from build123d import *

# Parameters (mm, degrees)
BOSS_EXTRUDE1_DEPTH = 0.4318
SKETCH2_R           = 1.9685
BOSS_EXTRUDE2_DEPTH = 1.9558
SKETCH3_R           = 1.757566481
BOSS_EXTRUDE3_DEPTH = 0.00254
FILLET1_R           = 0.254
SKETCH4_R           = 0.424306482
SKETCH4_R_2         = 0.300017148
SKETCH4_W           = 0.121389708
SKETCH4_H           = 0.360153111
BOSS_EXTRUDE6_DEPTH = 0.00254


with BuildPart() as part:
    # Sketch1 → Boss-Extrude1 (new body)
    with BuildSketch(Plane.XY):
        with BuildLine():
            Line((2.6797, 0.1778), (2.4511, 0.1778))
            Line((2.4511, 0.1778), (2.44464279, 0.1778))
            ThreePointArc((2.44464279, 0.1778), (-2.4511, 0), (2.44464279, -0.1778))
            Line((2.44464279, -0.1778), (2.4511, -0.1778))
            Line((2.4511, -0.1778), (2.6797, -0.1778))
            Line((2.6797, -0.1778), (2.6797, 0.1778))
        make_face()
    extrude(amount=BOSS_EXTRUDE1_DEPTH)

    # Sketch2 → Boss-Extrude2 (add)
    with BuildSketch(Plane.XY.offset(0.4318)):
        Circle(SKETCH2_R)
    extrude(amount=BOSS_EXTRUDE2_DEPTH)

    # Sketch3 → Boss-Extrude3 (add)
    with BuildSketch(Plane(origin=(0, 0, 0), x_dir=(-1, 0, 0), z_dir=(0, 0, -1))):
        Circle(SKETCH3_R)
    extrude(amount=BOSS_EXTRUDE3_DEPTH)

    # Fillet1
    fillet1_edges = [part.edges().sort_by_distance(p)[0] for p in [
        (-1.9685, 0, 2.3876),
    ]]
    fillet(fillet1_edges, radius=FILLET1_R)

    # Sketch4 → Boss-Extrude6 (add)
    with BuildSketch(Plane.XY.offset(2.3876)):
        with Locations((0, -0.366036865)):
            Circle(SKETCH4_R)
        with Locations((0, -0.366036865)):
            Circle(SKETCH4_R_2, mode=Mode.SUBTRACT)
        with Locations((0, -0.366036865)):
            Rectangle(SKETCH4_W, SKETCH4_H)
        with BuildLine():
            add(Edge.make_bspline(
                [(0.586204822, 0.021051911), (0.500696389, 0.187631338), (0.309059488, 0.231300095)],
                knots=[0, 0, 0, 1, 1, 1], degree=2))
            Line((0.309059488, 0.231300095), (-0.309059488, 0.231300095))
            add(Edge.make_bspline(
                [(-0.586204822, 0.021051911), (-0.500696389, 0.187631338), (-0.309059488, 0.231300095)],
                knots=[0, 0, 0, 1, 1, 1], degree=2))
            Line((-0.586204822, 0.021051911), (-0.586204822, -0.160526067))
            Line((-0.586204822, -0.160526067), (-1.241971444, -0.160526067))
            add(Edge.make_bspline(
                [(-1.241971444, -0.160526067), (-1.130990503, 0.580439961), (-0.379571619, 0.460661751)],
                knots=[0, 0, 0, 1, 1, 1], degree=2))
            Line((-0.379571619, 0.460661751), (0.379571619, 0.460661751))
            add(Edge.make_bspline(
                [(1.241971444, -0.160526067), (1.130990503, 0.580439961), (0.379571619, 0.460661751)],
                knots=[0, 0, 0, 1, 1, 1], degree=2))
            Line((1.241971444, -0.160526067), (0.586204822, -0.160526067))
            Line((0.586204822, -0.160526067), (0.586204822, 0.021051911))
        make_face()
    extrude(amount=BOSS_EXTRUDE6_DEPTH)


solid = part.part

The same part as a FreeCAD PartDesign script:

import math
import FreeCAD as App
import Part
import Sketcher
Q = App.Units.Quantity


def edges_at(feature, points):
    """Names of the edges that pass closest to the given points."""
    edges = feature.Shape.Edges
    near = lambda p: min(range(len(edges)), key=lambda i: edges[i].distToShape(Part.Vertex(*p))[0])
    return sorted({f"Edge{near(p) + 1}" for p in points})

doc = App.newDocument("Part")
body = doc.addObject("PartDesign::Body", "Body")

# Sketch on XY plane
sketch1 = body.newObject("Sketcher::SketchObject", "Sketch")
sketch1.AttachmentSupport = (doc.getObject("XY_Plane"), [""])
sketch1.MapMode = "FlatFace"
sketch1.addGeometry([
    Part.LineSegment(App.Vector(2.68, 0.18, 0), App.Vector(2.44, 0.18, 0)),
    Part.ArcOfCircle(Part.Circle(App.Vector(0, 0, 0), App.Vector(0, 0, 1), 2.45), math.radians(4), math.radians(356)),
    Part.LineSegment(App.Vector(2.44, -0.18, 0), App.Vector(2.68, -0.18, 0)),
    Part.LineSegment(App.Vector(2.68, -0.18, 0), App.Vector(2.68, 0.18, 0)),
], False)
sketch1.addConstraint([
    Sketcher.Constraint("Coincident", 0, 2, 1, 1),
    Sketcher.Constraint("Coincident", 1, 2, 2, 1),
    Sketcher.Constraint("Coincident", 2, 2, 3, 1),
    Sketcher.Constraint("Coincident", 3, 2, 0, 1),
    Sketcher.Constraint("Horizontal", 0),
    Sketcher.Constraint("Horizontal", 2),
    Sketcher.Constraint("Vertical", 3),
    Sketcher.Constraint("Coincident", 1, 3, -1, 1),
    Sketcher.Constraint("Vertical", 0, 2, 1, 2),
    Sketcher.Constraint("Radius", 1, Q("0.0965 in")),
    Sketcher.Constraint("DistanceY", 3, 1, 3, 2, Q("0.014 in")),
    Sketcher.Constraint("DistanceX", -1, 1, 2, 2, Q("0.1055 in")),
])
pad1 = body.newObject("PartDesign::Pad", "Pad")
pad1.Profile = sketch1
pad1.Length = Q("0.017 in")

# Sketch on XY plane
sketch2 = body.newObject("Sketcher::SketchObject", "Sketch001")
sketch2.AttachmentSupport = (doc.getObject("XY_Plane"), [""])
sketch2.MapMode = "FlatFace"
sketch2.AttachmentOffset = App.Placement(App.Vector(0, 0, 0.017 * 25.4), App.Rotation())
sketch2.addGeometry(Part.Circle(App.Vector(0, 0, 0), App.Vector(0, 0, 1), 2), False)
sketch2.addConstraint([
    Sketcher.Constraint("Coincident", 0, 3, -1, 1),
    Sketcher.Constraint("Diameter", 0, Q("0.155 in")),
])
pad2 = body.newObject("PartDesign::Pad", "Pad001")
pad2.Profile = sketch2
pad2.Length = Q("0.077 in")

# Sketch on XY plane
sketch3 = body.newObject("Sketcher::SketchObject", "Sketch002")
sketch3.AttachmentSupport = (doc.getObject("XY_Plane"), [""])
sketch3.MapMode = "FlatFace"
sketch3.addGeometry(Part.Circle(App.Vector(0, 0, 0), App.Vector(0, 0, 1), 1.8), False)
sketch3.addConstraint([
    Sketcher.Constraint("Coincident", 0, 3, -1, 1),
    Sketcher.Constraint("Diameter", 0, 3.515133),
])
pad3 = body.newObject("PartDesign::Pad", "Pad002")
pad3.Profile = sketch3
pad3.Length = Q("0.0001 in")
pad3.Reversed = True
doc.recompute()

fillet = body.newObject("PartDesign::Fillet", "Fillet")
fillet.Base = (pad3, edges_at(pad3, [(-1.968, 0, 2.388)]))
fillet.Radius = Q("0.01 in")

# Sketch on XY plane
sketch4 = body.newObject("Sketcher::SketchObject", "Sketch003")
sketch4.AttachmentSupport = (doc.getObject("XY_Plane"), [""])
sketch4.MapMode = "FlatFace"
sketch4.AttachmentOffset = App.Placement(App.Vector(0, 0, 0.094 * 25.4), App.Rotation())
sketch4.addGeometry([
    Part.Circle(App.Vector(0, -0.366037, 0), App.Vector(0, 0, 1), 0.424306),  # 0
    Part.Circle(App.Vector(0, -0.366037, 0), App.Vector(0, 0, 1), 0.300017),  # 1
    Part.LineSegment(App.Vector(-0.060695, -0.18596, 0), App.Vector(-0.060695, -0.546113, 0)),  # 2
    Part.LineSegment(App.Vector(-0.060695, -0.546113, 0), App.Vector(0.060695, -0.546113, 0)),  # 3
    Part.LineSegment(App.Vector(0.060695, -0.546113, 0), App.Vector(0.060695, -0.18596, 0)),  # 4
    Part.LineSegment(App.Vector(0.060695, -0.18596, 0), App.Vector(-0.060695, -0.18596, 0)),  # 5
    Part.BSplineCurve([App.Vector(0.586205, 0.021052, 0), App.Vector(0.500696, 0.187631, 0), App.Vector(0.309059, 0.2313, 0)], [3, 3], [0, 1], False, 2, [1, 1, 1], False),  # 6
    Part.LineSegment(App.Vector(0.586205, 0.021052, 0), App.Vector(0.586205, -0.160526, 0)),  # 7
    Part.LineSegment(App.Vector(0.586205, -0.160526, 0), App.Vector(1.241971, -0.160526, 0)),  # 8
    Part.BSplineCurve([App.Vector(1.241971, -0.160526, 0), App.Vector(1.130991, 0.58044, 0), App.Vector(0.379572, 0.460662, 0)], [3, 3], [0, 1], False, 2, [1, 1, 1], False),  # 9
    Part.LineSegment(App.Vector(0.379572, 0.460662, 0), App.Vector(-0.379572, 0.460662, 0)),  # 10
    Part.BSplineCurve([App.Vector(-1.241971, -0.160526, 0), App.Vector(-1.130991, 0.58044, 0), App.Vector(-0.379572, 0.460662, 0)], [3, 3], [0, 1], False, 2, [1, 1, 1], False),  # 11
    Part.LineSegment(App.Vector(-1.241971, -0.160526, 0), App.Vector(-0.586205, -0.160526, 0)),  # 12
    Part.LineSegment(App.Vector(-0.586205, -0.160526, 0), App.Vector(-0.586205, 0.021052, 0)),  # 13
    Part.BSplineCurve([App.Vector(-0.586205, 0.021052, 0), App.Vector(-0.500696, 0.187631, 0), App.Vector(-0.309059, 0.2313, 0)], [3, 3], [0, 1], False, 2, [1, 1, 1], False),  # 14
    Part.LineSegment(App.Vector(-0.309059, 0.2313, 0), App.Vector(0.309059, 0.2313, 0)),  # 15
], False)
sketch4.addConstraint([
    Sketcher.Constraint("Block", 6),
    Sketcher.Constraint("Block", 9),
    Sketcher.Constraint("Block", 11),
    Sketcher.Constraint("Block", 14),
    Sketcher.Constraint("Coincident", 2, 2, 3, 1),
    Sketcher.Constraint("Coincident", 3, 2, 4, 1),
    Sketcher.Constraint("Coincident", 4, 2, 5, 1),
    Sketcher.Constraint("Coincident", 5, 2, 2, 1),
    Sketcher.Constraint("Coincident", 6, 1, 7, 1),
    Sketcher.Constraint("Coincident", 7, 2, 8, 1),
    Sketcher.Constraint("Coincident", 8, 2, 9, 1),
    Sketcher.Constraint("Coincident", 9, 2, 10, 1),
    Sketcher.Constraint("Coincident", 10, 2, 11, 2),
    Sketcher.Constraint("Coincident", 11, 1, 12, 1),
    Sketcher.Constraint("Coincident", 12, 2, 13, 1),
    Sketcher.Constraint("Coincident", 13, 2, 14, 1),
    Sketcher.Constraint("Coincident", 14, 2, 15, 1),
    Sketcher.Constraint("Coincident", 15, 2, 6, 2),
    Sketcher.Constraint("Vertical", 2),
    Sketcher.Constraint("Horizontal", 3),
    Sketcher.Constraint("Vertical", 4),
    Sketcher.Constraint("Horizontal", 5),
    Sketcher.Constraint("Vertical", 7),
    Sketcher.Constraint("Horizontal", 8),
    Sketcher.Constraint("Horizontal", 12),
    Sketcher.Constraint("Vertical", 13),
    Sketcher.Constraint("Coincident", 1, 3, 0, 3),
    Sketcher.Constraint("PointOnObject", 0, 3, -2),
    Sketcher.Constraint("Diameter", 0, 0.848613),
    Sketcher.Constraint("Diameter", 1, 0.600034),
    Sketcher.Constraint("DistanceX", 3, 1, 3, 2, 0.12139),
    Sketcher.Constraint("DistanceX", 5, 2, 7, 2, 0.6469),
    Sketcher.Constraint("DistanceY", 0, 3, 10, 2, 0.826699),
    Sketcher.Constraint("DistanceY", 2, 2, 2, 1, 0.360153),
    Sketcher.Constraint("DistanceY", 4, 2, -1, 1, 0.18596),
])
pad4 = body.newObject("PartDesign::Pad", "Pad003")
pad4.Profile = sketch4
pad4.Length = Q("0.0001 in")

doc.recompute()
